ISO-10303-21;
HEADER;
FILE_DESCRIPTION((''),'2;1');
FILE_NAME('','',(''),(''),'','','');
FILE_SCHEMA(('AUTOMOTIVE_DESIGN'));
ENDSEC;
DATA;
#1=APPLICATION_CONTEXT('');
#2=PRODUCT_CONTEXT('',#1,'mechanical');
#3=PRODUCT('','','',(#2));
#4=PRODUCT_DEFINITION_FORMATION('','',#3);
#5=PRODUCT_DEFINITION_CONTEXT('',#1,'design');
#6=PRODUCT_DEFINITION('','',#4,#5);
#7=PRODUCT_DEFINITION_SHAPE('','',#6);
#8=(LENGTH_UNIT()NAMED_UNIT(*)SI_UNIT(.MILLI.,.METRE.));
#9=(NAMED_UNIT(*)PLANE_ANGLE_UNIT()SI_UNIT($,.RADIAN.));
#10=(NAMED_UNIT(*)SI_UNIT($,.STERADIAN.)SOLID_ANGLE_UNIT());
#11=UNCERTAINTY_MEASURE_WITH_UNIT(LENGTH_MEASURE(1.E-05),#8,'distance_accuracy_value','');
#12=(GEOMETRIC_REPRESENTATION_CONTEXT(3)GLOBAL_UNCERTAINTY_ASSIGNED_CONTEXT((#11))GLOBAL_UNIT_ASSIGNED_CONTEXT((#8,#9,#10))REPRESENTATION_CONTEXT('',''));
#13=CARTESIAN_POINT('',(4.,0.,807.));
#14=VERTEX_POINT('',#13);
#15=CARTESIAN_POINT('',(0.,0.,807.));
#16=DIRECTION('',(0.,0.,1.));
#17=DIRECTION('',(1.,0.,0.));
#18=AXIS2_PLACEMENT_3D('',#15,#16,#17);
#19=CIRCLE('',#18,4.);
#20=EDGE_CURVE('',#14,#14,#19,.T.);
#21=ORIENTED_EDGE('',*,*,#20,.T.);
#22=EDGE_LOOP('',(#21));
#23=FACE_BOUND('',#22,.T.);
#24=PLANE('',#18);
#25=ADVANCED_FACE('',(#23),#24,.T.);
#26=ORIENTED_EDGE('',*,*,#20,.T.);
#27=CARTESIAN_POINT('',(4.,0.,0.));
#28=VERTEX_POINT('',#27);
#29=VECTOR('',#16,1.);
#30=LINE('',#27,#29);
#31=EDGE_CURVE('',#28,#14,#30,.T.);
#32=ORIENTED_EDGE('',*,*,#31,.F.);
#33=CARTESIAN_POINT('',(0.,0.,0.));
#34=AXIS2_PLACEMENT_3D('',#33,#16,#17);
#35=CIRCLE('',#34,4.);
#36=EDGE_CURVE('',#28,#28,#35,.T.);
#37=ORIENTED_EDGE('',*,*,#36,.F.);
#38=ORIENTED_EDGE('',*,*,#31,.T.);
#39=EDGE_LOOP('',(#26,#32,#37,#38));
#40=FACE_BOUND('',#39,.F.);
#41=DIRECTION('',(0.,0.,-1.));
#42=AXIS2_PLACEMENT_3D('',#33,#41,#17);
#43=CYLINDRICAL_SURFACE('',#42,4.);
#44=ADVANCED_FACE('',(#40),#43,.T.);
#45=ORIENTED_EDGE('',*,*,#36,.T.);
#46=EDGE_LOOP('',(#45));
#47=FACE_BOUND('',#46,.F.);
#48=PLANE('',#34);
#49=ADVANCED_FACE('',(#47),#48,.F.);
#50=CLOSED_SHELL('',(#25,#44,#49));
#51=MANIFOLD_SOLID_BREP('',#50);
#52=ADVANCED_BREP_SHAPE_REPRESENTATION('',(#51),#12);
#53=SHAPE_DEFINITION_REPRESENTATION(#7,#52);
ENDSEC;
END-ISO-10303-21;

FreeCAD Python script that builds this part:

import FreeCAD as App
import Part
import Sketcher
Q = App.Units.Quantity

doc = App.newDocument("Part")
body = doc.addObject("PartDesign::Body", "Body")

# Sketch on XY plane
sketch1 = body.newObject("Sketcher::SketchObject", "Sketch")
sketch1.AttachmentSupport = (doc.getObject("XY_Plane"), [""])
sketch1.MapMode = "FlatFace"
sketch1.addGeometry(Part.Circle(App.Vector(0, 0, 0), App.Vector(0, 0, 1), 4), False)
sketch1.addConstraint([
    Sketcher.Constraint("Coincident", 0, 3, -1, 1),
    Sketcher.Constraint("Diameter", 0, Q("8 mm")),
])
pad1 = body.newObject("PartDesign::Pad", "Pad")
pad1.Profile = sketch1
pad1.Length = 807

doc.recompute()
